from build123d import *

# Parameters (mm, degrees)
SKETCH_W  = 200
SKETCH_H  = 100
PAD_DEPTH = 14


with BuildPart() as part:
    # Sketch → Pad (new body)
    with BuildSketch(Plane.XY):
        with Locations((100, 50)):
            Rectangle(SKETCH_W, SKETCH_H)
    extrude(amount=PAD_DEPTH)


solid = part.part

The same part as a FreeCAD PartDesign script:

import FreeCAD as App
import Part
import Sketcher
Q = App.Units.Quantity


def add_polygon(sketch, points):
    """Adds a closed chain of lines whose ends are joined by coincident constraints."""
    first, n = sketch.GeometryCount, len(points)
    for a, b in zip(points, points[1:] + points[:1]):
        sketch.addGeometry(Part.LineSegment(App.Vector(*a, 0), App.Vector(*b, 0)), False)
    for i in range(n):
        sketch.addConstraint(Sketcher.Constraint("Coincident", first + i, 2, first + (i + 1) % n, 1))

doc = App.newDocument("Part")
params = doc.addObject("Spreadsheet::Sheet", "Params")
for row, (alias, value) in enumerate([
    ("sketch1_width", "200 mm"),
    ("sketch1_height", "100 mm"),
    ("pad1_length", "14 mm"),
], start=1):
    params.set(f"A{row}", alias)
    params.set(f"B{row}", "=" + value)
    params.setAlias(f"B{row}", alias)

body = doc.addObject("PartDesign::Body", "Body")

# Sketch on XY plane
sketch1 = body.newObject("Sketcher::SketchObject", "Sketch")
sketch1.AttachmentSupport = (doc.getObject("XY_Plane"), [""])
sketch1.MapMode = "FlatFace"
add_polygon(sketch1, [(0, 100), (0, 0), (200, 0), (200, 100)])  # lines 0-3
sketch1.addConstraint(Sketcher.Constraint("Vertical", 0))
sketch1.addConstraint(Sketcher.Constraint("Horizontal", 1))
sketch1.addConstraint(Sketcher.Constraint("Vertical", 2))
sketch1.addConstraint(Sketcher.Constraint("Horizontal", 3))
sketch1.addConstraint(Sketcher.Constraint("Coincident", 0, 2, -1, 1))
sketch1.addConstraint(Sketcher.Constraint("DistanceX", 1, 1, 1, 2, Q("200 mm")))
sketch1.addConstraint(Sketcher.Constraint("DistanceY", 0, 2, 0, 1, Q("100 mm")))
sketch1.setExpression("Constraints[9]", "Params.sketch1_width")
sketch1.setExpression("Constraints[10]", "Params.sketch1_height")
pad1 = body.newObject("PartDesign::Pad", "Pad")
pad1.Profile = sketch1
pad1.setExpression("Length", "Params.pad1_length")

doc.recompute()
